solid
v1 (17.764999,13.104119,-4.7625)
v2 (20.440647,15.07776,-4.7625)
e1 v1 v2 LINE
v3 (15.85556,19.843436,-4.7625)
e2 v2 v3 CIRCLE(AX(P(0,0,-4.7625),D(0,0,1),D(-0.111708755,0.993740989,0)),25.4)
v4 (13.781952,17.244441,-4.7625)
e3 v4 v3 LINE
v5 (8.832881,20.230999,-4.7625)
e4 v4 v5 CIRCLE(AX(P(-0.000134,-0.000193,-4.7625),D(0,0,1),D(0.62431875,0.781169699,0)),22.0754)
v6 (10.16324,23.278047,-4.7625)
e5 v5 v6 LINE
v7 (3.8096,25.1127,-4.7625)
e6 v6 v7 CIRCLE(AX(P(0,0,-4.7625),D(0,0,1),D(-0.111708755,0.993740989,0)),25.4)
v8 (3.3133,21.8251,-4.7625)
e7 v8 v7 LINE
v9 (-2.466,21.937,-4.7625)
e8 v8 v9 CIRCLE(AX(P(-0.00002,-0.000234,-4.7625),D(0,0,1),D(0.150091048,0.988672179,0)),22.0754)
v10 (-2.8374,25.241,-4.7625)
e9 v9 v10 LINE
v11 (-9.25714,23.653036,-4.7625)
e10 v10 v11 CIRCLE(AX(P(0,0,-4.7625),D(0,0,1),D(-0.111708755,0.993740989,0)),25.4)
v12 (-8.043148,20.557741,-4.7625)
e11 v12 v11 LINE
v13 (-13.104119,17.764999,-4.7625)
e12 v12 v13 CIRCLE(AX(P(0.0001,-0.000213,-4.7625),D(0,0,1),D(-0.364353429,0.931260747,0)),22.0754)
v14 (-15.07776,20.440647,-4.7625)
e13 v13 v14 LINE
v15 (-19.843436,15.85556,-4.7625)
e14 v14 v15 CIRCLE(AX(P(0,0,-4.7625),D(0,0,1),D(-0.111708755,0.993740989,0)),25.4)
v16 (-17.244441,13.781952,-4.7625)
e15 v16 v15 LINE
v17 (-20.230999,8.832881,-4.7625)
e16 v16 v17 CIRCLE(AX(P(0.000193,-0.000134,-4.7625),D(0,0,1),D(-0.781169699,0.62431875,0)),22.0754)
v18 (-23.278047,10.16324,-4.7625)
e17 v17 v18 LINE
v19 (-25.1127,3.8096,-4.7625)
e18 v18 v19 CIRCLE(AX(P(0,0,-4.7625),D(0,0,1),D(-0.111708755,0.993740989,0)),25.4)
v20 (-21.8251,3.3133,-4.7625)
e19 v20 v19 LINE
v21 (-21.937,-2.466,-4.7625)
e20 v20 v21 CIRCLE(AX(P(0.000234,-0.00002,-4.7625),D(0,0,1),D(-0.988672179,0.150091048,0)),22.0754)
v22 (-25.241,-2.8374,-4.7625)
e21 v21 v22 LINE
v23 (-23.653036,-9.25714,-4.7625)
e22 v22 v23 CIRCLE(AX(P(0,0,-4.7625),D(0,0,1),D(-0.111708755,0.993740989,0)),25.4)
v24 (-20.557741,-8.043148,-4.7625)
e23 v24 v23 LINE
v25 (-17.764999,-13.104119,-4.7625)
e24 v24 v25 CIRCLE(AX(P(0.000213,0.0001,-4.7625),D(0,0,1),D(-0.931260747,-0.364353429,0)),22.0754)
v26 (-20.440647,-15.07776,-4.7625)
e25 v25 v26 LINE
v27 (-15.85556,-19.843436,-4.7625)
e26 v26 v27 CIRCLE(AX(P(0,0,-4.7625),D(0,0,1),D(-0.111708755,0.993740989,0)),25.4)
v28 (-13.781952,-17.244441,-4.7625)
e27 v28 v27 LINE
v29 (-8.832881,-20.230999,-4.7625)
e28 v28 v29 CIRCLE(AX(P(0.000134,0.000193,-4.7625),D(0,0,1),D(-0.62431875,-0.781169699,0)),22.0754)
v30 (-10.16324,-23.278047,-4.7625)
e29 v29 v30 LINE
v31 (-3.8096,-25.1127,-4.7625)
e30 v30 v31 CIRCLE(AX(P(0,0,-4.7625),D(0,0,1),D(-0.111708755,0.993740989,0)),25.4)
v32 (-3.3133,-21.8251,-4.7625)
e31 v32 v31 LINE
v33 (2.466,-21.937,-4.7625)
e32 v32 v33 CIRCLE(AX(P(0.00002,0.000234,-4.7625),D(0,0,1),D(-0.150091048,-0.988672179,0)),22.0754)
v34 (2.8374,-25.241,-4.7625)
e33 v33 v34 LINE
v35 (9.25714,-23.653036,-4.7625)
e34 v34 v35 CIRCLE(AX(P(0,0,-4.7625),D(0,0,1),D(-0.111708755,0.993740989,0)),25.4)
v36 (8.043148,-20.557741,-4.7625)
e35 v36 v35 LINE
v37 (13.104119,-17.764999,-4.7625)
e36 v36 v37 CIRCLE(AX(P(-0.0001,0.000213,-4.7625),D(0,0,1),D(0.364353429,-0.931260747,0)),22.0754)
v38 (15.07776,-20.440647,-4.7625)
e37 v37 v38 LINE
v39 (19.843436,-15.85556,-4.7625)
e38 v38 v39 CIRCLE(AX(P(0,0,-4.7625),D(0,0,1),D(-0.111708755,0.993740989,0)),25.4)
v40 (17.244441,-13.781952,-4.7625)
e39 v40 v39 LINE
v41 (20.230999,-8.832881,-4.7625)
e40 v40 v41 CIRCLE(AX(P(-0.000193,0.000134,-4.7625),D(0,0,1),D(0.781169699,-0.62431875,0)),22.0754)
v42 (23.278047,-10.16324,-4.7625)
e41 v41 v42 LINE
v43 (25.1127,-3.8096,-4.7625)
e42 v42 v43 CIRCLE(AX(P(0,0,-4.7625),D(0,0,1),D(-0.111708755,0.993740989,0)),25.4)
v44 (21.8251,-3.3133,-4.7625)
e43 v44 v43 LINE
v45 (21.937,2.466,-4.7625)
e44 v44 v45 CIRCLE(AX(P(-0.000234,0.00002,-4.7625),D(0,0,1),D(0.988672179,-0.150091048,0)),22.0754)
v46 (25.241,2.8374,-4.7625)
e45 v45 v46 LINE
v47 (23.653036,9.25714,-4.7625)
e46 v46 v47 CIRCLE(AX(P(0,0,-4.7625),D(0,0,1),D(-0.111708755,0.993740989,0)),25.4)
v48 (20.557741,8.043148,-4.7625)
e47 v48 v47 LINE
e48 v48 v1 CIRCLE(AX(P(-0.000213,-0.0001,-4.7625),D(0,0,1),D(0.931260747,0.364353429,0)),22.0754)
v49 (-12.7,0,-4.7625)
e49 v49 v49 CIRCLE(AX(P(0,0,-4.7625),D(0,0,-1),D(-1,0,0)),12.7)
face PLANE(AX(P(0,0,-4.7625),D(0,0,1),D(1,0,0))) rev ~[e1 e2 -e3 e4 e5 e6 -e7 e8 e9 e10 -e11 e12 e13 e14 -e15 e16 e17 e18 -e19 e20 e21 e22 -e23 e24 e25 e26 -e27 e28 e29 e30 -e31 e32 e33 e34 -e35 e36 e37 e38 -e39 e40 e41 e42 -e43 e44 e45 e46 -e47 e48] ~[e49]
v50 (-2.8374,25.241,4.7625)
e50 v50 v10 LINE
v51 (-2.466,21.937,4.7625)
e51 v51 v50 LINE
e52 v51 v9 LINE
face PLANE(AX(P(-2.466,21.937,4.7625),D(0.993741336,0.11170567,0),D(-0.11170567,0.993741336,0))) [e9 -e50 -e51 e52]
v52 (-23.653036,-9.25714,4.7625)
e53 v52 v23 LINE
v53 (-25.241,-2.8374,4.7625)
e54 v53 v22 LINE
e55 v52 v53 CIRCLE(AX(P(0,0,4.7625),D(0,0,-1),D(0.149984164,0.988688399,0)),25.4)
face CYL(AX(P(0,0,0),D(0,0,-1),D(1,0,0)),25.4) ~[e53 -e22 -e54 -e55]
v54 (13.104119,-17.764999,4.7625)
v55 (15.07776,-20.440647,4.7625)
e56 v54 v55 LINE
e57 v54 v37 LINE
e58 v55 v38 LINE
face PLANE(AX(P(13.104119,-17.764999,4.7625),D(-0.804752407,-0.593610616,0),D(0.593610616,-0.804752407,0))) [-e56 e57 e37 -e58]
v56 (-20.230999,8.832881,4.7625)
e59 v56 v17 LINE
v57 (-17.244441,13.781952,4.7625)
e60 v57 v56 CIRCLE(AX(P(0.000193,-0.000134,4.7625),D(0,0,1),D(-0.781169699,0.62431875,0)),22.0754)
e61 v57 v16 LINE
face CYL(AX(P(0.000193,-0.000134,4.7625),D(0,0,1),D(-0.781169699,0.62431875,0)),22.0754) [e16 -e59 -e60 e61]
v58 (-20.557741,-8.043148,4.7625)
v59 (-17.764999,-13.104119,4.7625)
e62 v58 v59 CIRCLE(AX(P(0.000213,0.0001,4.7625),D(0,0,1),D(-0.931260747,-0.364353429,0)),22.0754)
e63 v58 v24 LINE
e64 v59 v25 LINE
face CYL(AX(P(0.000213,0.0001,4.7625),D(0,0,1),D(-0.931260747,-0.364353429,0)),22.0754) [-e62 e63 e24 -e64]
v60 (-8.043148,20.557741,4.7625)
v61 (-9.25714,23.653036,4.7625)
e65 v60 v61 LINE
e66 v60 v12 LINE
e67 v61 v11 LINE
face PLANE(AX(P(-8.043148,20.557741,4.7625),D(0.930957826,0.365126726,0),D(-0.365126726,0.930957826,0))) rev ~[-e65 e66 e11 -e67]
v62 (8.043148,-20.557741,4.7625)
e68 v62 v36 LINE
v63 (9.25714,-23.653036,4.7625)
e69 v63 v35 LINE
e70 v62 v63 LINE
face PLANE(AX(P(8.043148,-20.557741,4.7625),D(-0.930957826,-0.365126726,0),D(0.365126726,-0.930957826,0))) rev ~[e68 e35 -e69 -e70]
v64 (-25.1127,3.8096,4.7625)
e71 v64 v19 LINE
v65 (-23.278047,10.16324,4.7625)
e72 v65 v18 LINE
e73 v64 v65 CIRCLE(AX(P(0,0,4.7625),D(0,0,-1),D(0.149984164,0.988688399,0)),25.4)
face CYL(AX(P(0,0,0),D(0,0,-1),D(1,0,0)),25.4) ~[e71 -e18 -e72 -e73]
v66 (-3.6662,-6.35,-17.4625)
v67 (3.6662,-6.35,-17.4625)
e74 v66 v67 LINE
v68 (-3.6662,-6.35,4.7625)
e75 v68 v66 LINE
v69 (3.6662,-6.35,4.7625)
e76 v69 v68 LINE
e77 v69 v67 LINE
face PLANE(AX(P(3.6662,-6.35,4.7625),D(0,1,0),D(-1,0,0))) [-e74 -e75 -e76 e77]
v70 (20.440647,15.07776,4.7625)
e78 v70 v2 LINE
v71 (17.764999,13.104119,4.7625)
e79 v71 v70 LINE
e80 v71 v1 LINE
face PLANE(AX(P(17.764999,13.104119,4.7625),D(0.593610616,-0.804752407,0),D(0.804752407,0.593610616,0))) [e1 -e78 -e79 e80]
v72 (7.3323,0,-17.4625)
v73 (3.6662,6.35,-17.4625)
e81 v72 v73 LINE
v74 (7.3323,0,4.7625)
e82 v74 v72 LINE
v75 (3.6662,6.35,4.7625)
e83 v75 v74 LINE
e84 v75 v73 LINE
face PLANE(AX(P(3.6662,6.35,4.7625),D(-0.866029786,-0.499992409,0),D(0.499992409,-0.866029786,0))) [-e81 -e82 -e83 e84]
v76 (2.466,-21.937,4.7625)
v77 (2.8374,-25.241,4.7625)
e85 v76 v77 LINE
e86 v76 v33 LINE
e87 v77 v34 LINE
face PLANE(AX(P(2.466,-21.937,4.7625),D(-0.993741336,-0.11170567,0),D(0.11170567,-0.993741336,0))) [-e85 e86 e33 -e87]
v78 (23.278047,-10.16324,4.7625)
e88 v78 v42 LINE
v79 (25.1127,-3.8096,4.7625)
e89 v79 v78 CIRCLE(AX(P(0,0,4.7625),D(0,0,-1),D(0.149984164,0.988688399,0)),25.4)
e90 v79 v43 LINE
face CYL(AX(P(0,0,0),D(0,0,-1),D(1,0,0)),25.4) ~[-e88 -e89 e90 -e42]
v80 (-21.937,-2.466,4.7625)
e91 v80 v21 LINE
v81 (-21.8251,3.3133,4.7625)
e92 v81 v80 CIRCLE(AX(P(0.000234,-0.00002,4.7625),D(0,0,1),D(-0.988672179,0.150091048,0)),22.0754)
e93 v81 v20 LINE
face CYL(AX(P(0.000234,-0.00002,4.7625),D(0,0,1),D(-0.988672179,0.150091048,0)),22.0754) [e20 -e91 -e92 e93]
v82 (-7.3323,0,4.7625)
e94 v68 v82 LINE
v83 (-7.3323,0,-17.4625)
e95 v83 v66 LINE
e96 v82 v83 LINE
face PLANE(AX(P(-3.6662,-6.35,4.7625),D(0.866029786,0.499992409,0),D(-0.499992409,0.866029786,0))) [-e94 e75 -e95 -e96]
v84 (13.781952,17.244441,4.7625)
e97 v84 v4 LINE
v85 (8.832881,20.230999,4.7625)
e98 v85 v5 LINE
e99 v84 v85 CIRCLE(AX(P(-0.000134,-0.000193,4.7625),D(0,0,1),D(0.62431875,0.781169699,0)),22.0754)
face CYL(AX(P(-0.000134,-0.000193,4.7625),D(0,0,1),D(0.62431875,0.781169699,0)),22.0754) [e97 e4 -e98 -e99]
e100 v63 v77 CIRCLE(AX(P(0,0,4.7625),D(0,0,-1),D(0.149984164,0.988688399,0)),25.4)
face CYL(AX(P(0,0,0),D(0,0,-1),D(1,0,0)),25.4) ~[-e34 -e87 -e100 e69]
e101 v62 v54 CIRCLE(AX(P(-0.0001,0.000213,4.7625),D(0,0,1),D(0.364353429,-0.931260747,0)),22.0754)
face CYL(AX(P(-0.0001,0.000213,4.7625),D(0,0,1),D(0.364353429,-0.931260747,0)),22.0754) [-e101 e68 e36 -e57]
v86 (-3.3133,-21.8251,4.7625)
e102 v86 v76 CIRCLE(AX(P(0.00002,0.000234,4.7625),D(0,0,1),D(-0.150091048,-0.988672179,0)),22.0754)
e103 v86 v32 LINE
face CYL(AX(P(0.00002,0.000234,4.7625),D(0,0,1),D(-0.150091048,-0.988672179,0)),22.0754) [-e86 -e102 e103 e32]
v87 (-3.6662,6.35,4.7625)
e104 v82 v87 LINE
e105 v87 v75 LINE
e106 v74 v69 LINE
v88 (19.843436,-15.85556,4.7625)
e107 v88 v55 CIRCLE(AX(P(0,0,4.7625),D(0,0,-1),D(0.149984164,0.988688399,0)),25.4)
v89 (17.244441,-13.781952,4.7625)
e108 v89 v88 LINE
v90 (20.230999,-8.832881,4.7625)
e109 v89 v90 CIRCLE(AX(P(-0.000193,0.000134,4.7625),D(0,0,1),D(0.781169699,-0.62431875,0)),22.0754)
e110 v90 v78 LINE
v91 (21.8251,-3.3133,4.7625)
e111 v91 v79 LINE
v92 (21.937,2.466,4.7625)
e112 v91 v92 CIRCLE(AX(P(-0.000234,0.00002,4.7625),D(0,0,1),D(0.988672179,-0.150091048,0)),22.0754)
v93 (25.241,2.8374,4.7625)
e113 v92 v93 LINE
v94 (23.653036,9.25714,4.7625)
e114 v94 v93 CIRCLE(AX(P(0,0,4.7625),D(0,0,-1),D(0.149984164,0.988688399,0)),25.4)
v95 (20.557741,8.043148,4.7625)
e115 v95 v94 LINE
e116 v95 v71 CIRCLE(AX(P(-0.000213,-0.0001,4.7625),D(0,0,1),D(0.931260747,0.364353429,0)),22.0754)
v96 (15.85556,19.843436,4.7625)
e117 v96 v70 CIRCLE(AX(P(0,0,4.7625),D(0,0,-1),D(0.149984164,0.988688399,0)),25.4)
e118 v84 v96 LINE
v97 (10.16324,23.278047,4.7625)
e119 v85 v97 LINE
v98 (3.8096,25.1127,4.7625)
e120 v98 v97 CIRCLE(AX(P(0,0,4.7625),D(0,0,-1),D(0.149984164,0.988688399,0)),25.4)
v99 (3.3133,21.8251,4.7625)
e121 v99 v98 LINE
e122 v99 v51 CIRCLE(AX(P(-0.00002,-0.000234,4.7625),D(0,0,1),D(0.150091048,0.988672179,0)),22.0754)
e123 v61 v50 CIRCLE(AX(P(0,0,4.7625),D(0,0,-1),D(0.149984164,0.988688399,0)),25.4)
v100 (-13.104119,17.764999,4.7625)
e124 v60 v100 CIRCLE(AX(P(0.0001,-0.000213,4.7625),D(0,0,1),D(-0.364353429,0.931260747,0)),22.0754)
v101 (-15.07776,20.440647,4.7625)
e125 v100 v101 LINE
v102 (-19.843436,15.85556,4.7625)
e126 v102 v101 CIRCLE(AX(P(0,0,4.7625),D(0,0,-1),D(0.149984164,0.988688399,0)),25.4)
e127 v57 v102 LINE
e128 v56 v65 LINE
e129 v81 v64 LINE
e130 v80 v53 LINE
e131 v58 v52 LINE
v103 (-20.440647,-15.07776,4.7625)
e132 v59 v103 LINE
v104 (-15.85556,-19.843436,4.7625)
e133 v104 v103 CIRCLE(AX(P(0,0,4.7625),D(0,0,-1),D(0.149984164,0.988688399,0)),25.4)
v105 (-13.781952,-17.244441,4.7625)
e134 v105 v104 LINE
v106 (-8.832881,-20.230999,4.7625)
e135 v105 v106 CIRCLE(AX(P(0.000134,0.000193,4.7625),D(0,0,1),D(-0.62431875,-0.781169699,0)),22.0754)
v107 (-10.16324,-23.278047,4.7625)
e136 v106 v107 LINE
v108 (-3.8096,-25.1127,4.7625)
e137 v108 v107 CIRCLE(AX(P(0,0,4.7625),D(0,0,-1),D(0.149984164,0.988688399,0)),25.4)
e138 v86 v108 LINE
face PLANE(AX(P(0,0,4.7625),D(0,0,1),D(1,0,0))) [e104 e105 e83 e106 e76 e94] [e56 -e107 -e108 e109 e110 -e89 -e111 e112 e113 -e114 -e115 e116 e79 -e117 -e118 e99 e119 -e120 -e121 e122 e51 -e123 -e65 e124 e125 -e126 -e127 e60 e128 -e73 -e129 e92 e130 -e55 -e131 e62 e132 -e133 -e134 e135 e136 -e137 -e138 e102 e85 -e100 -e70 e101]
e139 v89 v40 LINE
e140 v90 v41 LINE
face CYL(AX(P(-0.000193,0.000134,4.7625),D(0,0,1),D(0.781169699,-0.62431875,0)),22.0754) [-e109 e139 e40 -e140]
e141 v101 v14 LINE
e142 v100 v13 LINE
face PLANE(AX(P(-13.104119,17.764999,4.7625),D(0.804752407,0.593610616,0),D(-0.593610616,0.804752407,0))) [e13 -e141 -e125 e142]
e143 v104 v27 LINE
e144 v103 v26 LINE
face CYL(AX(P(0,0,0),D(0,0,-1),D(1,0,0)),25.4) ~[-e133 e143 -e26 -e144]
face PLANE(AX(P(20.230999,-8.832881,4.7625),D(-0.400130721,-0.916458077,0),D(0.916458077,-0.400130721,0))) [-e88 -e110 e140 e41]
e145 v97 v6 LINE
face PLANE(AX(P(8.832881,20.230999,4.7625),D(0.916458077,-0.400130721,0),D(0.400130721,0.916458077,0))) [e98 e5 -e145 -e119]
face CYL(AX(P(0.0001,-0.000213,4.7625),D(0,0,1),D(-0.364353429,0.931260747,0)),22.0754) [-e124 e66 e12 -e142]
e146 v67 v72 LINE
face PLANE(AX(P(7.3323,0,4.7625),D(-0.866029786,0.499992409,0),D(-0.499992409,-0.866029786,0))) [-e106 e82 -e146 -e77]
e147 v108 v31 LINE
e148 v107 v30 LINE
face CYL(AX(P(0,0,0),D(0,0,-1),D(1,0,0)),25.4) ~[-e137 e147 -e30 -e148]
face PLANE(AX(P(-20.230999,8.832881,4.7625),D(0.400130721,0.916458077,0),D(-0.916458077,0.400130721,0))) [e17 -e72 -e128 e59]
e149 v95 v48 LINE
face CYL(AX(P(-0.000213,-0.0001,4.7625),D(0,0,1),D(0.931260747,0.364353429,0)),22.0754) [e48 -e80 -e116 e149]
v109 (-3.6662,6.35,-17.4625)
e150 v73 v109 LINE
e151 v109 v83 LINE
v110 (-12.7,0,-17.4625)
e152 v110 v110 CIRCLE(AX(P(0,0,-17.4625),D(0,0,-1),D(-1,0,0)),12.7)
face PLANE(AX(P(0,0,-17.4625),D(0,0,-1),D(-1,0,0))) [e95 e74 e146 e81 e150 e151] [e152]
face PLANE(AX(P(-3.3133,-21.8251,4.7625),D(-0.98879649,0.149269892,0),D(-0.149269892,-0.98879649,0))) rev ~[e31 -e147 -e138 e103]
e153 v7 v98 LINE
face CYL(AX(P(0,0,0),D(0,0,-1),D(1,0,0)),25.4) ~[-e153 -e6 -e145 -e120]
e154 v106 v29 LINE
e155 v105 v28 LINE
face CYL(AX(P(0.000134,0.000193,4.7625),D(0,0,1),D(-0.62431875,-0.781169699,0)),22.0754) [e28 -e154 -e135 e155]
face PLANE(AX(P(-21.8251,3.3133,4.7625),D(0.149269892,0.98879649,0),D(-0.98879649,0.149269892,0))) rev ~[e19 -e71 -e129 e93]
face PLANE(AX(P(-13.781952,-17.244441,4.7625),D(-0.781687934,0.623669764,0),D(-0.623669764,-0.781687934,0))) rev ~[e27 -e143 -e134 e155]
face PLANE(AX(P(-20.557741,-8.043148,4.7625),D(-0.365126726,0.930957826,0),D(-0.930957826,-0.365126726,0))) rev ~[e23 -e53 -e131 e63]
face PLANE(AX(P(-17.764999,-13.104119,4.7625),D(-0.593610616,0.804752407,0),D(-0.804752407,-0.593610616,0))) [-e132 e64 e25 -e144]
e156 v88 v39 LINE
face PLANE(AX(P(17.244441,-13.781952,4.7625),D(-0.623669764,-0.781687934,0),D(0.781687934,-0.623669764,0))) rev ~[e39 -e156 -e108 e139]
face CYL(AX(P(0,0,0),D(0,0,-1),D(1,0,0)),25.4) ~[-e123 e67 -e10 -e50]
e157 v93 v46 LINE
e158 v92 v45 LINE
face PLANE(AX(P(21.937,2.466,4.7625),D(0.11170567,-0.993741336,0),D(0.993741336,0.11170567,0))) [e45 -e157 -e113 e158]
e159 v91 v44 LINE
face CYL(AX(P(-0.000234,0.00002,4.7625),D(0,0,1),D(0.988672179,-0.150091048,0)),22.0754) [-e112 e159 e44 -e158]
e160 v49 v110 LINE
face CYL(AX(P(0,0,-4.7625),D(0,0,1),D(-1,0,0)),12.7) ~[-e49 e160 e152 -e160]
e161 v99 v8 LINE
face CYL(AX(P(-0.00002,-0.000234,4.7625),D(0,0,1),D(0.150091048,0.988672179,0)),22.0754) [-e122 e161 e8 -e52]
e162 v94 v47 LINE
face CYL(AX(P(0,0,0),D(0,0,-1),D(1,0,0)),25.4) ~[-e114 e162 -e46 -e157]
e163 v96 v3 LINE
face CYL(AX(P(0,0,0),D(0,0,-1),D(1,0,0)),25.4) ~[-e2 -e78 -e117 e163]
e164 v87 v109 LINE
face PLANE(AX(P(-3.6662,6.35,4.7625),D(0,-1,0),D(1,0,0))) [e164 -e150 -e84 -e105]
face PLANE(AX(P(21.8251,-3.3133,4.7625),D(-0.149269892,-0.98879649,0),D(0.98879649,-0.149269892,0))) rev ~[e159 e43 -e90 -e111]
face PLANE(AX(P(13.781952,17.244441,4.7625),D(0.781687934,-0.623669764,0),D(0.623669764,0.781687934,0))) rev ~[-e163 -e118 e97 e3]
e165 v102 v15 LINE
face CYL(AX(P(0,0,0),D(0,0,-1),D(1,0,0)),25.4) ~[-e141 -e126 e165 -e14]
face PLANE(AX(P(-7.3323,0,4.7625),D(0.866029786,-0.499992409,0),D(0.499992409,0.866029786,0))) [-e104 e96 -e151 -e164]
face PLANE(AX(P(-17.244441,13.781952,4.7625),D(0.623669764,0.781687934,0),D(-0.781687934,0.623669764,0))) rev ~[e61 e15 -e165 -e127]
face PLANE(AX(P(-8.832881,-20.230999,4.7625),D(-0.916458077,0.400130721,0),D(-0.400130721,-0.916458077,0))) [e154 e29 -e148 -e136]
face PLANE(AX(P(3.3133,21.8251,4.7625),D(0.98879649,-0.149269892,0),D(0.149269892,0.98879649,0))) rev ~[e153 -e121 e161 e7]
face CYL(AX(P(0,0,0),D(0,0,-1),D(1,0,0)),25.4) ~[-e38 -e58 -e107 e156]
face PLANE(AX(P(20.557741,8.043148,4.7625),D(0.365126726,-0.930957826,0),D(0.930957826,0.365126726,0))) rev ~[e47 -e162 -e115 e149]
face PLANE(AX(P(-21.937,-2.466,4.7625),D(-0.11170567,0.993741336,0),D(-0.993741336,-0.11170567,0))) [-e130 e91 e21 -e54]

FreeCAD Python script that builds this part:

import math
import FreeCAD as App
import Part
import Sketcher
from FreeCAD import Vector
Q = App.Units.Quantity

doc = App.newDocument("Part")
body = doc.addObject("PartDesign::Body", "Body")

# Sketch on XY plane
sketch1 = body.newObject("Sketcher::SketchObject", "Sketch")
sketch1.AttachmentSupport = (doc.getObject("XY_Plane"), [""])
sketch1.MapMode = "FlatFace"
sketch1.addGeometry(Part.Circle(Vector(0, 0, 0), Vector(0, 0, 1), 25), False)
sketch1.addConstraint([
    Sketcher.Constraint("Coincident", 0, 3, -1, 1),
    Sketcher.Constraint("Diameter", 0, Q("2 in")),
])
pad1 = body.newObject("PartDesign::Pad", "Pad")
pad1.Profile = sketch1
pad1.Length = Q("0.375 in")
pad1.Midplane = True

# Sketch on XY plane
sketch2 = body.newObject("Sketcher::SketchObject", "Sketch001")
sketch2.AttachmentSupport = (doc.getObject("XY_Plane"), [""])
sketch2.MapMode = "FlatFace"
sketch2.AttachmentOffset = App.Placement(Vector(0, 0, 0.1875 * 25.4), App.Rotation())
sketch2.addGeometry([
    Part.LineSegment(Vector(3.3, 21.8, 0), Vector(3.8, 25.1, 0)),
    Part.ArcOfCircle(Part.Circle(Vector(0, 0, 0), Vector(0, 0, 1), 25.4), math.radians(81.37), math.radians(96.41)),
    Part.LineSegment(Vector(-2.8, 25.2, 0), Vector(-2.5, 21.9, 0)),
    Part.ArcOfCircle(Part.Circle(Vector(0, 0, 0), Vector(0, 0, 1), 22.1), math.radians(81.37), math.radians(96.41)),
], False)
sketch2.addConstraint([
    Sketcher.Constraint("Coincident", 0, 2, 1, 1),
    Sketcher.Constraint("Coincident", 1, 2, 2, 1),
    Sketcher.Constraint("Coincident", 2, 2, 3, 2),
    Sketcher.Constraint("Coincident", 3, 1, 0, 1),
    Sketcher.Constraint("Coincident", 1, 3, -1, 1),
    Sketcher.Constraint("Coincident", 3, 3, -1, 1),
    Sketcher.Constraint("Radius", 1, Q("1 in")),
    Sketcher.Constraint("Distance", 0, Q("0.1309 in")),
    Sketcher.Constraint("DistanceY", -1, 1, 0, 2, Q("0.9887 in")),
    Sketcher.Constraint("DistanceX", 1, 2, -1, 1, Q("0.1117 in")),
    Sketcher.Constraint("DistanceY", 3, 1, 2, 2, Q("0.0044 in")),
    Sketcher.Constraint("DistanceX", 2, 2, -1, 1, 2.466),
])
pocket1 = body.newObject("PartDesign::Pocket", "Pocket")
pocket1.Profile = sketch2
pocket1.Length = Q("0.375 in")
doc.recompute()

polarpattern = body.newObject("PartDesign::PolarPattern", "PolarPattern")
polarpattern.Originals = [pocket1]
polarpattern.Axis = (doc.getObject("Z_Axis"), [""])
polarpattern.Angle = 360
polarpattern.Occurrences = 12
body.Tip = polarpattern

# Sketch on XY plane
sketch3 = body.newObject("Sketcher::SketchObject", "Sketch002")
sketch3.AttachmentSupport = (doc.getObject("XY_Plane"), [""])
sketch3.MapMode = "FlatFace"
sketch3.AttachmentOffset = App.Placement(Vector(0, 0, -0.1875 * 25.4), App.Rotation())
sketch3.addGeometry(Part.Circle(Vector(0, 0, 0), Vector(0, 0, 1), 13), False)
sketch3.addConstraint([
    Sketcher.Constraint("Coincident", 0, 3, -1, 1),
    Sketcher.Constraint("Diameter", 0, Q("1 in")),
])
pad2 = body.newObject("PartDesign::Pad", "Pad001")
pad2.Profile = sketch3
pad2.Length = Q("0.5 in")
pad2.Reversed = True

# Sketch on XY plane
sketch4 = body.newObject("Sketcher::SketchObject", "Sketch003")
sketch4.AttachmentSupport = (doc.getObject("XY_Plane"), [""])
sketch4.MapMode = "FlatFace"
sketch4.AttachmentOffset = App.Placement(Vector(0, 0, 0.1875 * 25.4), App.Rotation())
sketch4.addGeometry([
    Part.LineSegment(Vector(4, -6, 0), Vector(7, 0, 0)),  # 0
    Part.LineSegment(Vector(7, 0, 0), Vector(4, 6, 0)),  # 1
    Part.LineSegment(Vector(4, 6, 0), Vector(-4, 6, 0)),  # 2
    Part.LineSegment(Vector(-4, 6, 0), Vector(-7, 0, 0)),  # 3
    Part.LineSegment(Vector(-7, 0, 0), Vector(-4, -6, 0)),  # 4
    Part.LineSegment(Vector(-4, -6, 0), Vector(4, -6, 0)),  # 5
], False)
sketch4.addConstraint([
    Sketcher.Constraint("Coincident", 0, 2, 1, 1),
    Sketcher.Constraint("Coincident", 1, 2, 2, 1),
    Sketcher.Constraint("Coincident", 2, 2, 3, 1),
    Sketcher.Constraint("Coincident", 3, 2, 4, 1),
    Sketcher.Constraint("Coincident", 4, 2, 5, 1),
    Sketcher.Constraint("Coincident", 5, 2, 0, 1),
    Sketcher.Constraint("Horizontal", 2),
    Sketcher.Constraint("Horizontal", 5),
    Sketcher.Constraint("Symmetric", 0, 2, 3, 2, -1, 1),
    Sketcher.Constraint("Symmetric", 1, 2, 4, 2, -1, 1),
    Sketcher.Constraint("PointOnObject", 0, 2, -1),
    Sketcher.Constraint("Parallel", 0, 3),
    Sketcher.Constraint("Vertical", 2, 2, 4, 2),
    Sketcher.Constraint("DistanceY", 4, 2, 2, 2, Q("0.5 in")),
    Sketcher.Constraint("Angle", 0, Q("60.0005 deg")),
    Sketcher.Constraint("DistanceX", 2, 2, 0, 2, Q("0.433 in")),
])
pocket2 = body.newObject("PartDesign::Pocket", "Pocket001")
pocket2.Profile = sketch4
pocket2.Type = "ThroughAll"

doc.recompute()
